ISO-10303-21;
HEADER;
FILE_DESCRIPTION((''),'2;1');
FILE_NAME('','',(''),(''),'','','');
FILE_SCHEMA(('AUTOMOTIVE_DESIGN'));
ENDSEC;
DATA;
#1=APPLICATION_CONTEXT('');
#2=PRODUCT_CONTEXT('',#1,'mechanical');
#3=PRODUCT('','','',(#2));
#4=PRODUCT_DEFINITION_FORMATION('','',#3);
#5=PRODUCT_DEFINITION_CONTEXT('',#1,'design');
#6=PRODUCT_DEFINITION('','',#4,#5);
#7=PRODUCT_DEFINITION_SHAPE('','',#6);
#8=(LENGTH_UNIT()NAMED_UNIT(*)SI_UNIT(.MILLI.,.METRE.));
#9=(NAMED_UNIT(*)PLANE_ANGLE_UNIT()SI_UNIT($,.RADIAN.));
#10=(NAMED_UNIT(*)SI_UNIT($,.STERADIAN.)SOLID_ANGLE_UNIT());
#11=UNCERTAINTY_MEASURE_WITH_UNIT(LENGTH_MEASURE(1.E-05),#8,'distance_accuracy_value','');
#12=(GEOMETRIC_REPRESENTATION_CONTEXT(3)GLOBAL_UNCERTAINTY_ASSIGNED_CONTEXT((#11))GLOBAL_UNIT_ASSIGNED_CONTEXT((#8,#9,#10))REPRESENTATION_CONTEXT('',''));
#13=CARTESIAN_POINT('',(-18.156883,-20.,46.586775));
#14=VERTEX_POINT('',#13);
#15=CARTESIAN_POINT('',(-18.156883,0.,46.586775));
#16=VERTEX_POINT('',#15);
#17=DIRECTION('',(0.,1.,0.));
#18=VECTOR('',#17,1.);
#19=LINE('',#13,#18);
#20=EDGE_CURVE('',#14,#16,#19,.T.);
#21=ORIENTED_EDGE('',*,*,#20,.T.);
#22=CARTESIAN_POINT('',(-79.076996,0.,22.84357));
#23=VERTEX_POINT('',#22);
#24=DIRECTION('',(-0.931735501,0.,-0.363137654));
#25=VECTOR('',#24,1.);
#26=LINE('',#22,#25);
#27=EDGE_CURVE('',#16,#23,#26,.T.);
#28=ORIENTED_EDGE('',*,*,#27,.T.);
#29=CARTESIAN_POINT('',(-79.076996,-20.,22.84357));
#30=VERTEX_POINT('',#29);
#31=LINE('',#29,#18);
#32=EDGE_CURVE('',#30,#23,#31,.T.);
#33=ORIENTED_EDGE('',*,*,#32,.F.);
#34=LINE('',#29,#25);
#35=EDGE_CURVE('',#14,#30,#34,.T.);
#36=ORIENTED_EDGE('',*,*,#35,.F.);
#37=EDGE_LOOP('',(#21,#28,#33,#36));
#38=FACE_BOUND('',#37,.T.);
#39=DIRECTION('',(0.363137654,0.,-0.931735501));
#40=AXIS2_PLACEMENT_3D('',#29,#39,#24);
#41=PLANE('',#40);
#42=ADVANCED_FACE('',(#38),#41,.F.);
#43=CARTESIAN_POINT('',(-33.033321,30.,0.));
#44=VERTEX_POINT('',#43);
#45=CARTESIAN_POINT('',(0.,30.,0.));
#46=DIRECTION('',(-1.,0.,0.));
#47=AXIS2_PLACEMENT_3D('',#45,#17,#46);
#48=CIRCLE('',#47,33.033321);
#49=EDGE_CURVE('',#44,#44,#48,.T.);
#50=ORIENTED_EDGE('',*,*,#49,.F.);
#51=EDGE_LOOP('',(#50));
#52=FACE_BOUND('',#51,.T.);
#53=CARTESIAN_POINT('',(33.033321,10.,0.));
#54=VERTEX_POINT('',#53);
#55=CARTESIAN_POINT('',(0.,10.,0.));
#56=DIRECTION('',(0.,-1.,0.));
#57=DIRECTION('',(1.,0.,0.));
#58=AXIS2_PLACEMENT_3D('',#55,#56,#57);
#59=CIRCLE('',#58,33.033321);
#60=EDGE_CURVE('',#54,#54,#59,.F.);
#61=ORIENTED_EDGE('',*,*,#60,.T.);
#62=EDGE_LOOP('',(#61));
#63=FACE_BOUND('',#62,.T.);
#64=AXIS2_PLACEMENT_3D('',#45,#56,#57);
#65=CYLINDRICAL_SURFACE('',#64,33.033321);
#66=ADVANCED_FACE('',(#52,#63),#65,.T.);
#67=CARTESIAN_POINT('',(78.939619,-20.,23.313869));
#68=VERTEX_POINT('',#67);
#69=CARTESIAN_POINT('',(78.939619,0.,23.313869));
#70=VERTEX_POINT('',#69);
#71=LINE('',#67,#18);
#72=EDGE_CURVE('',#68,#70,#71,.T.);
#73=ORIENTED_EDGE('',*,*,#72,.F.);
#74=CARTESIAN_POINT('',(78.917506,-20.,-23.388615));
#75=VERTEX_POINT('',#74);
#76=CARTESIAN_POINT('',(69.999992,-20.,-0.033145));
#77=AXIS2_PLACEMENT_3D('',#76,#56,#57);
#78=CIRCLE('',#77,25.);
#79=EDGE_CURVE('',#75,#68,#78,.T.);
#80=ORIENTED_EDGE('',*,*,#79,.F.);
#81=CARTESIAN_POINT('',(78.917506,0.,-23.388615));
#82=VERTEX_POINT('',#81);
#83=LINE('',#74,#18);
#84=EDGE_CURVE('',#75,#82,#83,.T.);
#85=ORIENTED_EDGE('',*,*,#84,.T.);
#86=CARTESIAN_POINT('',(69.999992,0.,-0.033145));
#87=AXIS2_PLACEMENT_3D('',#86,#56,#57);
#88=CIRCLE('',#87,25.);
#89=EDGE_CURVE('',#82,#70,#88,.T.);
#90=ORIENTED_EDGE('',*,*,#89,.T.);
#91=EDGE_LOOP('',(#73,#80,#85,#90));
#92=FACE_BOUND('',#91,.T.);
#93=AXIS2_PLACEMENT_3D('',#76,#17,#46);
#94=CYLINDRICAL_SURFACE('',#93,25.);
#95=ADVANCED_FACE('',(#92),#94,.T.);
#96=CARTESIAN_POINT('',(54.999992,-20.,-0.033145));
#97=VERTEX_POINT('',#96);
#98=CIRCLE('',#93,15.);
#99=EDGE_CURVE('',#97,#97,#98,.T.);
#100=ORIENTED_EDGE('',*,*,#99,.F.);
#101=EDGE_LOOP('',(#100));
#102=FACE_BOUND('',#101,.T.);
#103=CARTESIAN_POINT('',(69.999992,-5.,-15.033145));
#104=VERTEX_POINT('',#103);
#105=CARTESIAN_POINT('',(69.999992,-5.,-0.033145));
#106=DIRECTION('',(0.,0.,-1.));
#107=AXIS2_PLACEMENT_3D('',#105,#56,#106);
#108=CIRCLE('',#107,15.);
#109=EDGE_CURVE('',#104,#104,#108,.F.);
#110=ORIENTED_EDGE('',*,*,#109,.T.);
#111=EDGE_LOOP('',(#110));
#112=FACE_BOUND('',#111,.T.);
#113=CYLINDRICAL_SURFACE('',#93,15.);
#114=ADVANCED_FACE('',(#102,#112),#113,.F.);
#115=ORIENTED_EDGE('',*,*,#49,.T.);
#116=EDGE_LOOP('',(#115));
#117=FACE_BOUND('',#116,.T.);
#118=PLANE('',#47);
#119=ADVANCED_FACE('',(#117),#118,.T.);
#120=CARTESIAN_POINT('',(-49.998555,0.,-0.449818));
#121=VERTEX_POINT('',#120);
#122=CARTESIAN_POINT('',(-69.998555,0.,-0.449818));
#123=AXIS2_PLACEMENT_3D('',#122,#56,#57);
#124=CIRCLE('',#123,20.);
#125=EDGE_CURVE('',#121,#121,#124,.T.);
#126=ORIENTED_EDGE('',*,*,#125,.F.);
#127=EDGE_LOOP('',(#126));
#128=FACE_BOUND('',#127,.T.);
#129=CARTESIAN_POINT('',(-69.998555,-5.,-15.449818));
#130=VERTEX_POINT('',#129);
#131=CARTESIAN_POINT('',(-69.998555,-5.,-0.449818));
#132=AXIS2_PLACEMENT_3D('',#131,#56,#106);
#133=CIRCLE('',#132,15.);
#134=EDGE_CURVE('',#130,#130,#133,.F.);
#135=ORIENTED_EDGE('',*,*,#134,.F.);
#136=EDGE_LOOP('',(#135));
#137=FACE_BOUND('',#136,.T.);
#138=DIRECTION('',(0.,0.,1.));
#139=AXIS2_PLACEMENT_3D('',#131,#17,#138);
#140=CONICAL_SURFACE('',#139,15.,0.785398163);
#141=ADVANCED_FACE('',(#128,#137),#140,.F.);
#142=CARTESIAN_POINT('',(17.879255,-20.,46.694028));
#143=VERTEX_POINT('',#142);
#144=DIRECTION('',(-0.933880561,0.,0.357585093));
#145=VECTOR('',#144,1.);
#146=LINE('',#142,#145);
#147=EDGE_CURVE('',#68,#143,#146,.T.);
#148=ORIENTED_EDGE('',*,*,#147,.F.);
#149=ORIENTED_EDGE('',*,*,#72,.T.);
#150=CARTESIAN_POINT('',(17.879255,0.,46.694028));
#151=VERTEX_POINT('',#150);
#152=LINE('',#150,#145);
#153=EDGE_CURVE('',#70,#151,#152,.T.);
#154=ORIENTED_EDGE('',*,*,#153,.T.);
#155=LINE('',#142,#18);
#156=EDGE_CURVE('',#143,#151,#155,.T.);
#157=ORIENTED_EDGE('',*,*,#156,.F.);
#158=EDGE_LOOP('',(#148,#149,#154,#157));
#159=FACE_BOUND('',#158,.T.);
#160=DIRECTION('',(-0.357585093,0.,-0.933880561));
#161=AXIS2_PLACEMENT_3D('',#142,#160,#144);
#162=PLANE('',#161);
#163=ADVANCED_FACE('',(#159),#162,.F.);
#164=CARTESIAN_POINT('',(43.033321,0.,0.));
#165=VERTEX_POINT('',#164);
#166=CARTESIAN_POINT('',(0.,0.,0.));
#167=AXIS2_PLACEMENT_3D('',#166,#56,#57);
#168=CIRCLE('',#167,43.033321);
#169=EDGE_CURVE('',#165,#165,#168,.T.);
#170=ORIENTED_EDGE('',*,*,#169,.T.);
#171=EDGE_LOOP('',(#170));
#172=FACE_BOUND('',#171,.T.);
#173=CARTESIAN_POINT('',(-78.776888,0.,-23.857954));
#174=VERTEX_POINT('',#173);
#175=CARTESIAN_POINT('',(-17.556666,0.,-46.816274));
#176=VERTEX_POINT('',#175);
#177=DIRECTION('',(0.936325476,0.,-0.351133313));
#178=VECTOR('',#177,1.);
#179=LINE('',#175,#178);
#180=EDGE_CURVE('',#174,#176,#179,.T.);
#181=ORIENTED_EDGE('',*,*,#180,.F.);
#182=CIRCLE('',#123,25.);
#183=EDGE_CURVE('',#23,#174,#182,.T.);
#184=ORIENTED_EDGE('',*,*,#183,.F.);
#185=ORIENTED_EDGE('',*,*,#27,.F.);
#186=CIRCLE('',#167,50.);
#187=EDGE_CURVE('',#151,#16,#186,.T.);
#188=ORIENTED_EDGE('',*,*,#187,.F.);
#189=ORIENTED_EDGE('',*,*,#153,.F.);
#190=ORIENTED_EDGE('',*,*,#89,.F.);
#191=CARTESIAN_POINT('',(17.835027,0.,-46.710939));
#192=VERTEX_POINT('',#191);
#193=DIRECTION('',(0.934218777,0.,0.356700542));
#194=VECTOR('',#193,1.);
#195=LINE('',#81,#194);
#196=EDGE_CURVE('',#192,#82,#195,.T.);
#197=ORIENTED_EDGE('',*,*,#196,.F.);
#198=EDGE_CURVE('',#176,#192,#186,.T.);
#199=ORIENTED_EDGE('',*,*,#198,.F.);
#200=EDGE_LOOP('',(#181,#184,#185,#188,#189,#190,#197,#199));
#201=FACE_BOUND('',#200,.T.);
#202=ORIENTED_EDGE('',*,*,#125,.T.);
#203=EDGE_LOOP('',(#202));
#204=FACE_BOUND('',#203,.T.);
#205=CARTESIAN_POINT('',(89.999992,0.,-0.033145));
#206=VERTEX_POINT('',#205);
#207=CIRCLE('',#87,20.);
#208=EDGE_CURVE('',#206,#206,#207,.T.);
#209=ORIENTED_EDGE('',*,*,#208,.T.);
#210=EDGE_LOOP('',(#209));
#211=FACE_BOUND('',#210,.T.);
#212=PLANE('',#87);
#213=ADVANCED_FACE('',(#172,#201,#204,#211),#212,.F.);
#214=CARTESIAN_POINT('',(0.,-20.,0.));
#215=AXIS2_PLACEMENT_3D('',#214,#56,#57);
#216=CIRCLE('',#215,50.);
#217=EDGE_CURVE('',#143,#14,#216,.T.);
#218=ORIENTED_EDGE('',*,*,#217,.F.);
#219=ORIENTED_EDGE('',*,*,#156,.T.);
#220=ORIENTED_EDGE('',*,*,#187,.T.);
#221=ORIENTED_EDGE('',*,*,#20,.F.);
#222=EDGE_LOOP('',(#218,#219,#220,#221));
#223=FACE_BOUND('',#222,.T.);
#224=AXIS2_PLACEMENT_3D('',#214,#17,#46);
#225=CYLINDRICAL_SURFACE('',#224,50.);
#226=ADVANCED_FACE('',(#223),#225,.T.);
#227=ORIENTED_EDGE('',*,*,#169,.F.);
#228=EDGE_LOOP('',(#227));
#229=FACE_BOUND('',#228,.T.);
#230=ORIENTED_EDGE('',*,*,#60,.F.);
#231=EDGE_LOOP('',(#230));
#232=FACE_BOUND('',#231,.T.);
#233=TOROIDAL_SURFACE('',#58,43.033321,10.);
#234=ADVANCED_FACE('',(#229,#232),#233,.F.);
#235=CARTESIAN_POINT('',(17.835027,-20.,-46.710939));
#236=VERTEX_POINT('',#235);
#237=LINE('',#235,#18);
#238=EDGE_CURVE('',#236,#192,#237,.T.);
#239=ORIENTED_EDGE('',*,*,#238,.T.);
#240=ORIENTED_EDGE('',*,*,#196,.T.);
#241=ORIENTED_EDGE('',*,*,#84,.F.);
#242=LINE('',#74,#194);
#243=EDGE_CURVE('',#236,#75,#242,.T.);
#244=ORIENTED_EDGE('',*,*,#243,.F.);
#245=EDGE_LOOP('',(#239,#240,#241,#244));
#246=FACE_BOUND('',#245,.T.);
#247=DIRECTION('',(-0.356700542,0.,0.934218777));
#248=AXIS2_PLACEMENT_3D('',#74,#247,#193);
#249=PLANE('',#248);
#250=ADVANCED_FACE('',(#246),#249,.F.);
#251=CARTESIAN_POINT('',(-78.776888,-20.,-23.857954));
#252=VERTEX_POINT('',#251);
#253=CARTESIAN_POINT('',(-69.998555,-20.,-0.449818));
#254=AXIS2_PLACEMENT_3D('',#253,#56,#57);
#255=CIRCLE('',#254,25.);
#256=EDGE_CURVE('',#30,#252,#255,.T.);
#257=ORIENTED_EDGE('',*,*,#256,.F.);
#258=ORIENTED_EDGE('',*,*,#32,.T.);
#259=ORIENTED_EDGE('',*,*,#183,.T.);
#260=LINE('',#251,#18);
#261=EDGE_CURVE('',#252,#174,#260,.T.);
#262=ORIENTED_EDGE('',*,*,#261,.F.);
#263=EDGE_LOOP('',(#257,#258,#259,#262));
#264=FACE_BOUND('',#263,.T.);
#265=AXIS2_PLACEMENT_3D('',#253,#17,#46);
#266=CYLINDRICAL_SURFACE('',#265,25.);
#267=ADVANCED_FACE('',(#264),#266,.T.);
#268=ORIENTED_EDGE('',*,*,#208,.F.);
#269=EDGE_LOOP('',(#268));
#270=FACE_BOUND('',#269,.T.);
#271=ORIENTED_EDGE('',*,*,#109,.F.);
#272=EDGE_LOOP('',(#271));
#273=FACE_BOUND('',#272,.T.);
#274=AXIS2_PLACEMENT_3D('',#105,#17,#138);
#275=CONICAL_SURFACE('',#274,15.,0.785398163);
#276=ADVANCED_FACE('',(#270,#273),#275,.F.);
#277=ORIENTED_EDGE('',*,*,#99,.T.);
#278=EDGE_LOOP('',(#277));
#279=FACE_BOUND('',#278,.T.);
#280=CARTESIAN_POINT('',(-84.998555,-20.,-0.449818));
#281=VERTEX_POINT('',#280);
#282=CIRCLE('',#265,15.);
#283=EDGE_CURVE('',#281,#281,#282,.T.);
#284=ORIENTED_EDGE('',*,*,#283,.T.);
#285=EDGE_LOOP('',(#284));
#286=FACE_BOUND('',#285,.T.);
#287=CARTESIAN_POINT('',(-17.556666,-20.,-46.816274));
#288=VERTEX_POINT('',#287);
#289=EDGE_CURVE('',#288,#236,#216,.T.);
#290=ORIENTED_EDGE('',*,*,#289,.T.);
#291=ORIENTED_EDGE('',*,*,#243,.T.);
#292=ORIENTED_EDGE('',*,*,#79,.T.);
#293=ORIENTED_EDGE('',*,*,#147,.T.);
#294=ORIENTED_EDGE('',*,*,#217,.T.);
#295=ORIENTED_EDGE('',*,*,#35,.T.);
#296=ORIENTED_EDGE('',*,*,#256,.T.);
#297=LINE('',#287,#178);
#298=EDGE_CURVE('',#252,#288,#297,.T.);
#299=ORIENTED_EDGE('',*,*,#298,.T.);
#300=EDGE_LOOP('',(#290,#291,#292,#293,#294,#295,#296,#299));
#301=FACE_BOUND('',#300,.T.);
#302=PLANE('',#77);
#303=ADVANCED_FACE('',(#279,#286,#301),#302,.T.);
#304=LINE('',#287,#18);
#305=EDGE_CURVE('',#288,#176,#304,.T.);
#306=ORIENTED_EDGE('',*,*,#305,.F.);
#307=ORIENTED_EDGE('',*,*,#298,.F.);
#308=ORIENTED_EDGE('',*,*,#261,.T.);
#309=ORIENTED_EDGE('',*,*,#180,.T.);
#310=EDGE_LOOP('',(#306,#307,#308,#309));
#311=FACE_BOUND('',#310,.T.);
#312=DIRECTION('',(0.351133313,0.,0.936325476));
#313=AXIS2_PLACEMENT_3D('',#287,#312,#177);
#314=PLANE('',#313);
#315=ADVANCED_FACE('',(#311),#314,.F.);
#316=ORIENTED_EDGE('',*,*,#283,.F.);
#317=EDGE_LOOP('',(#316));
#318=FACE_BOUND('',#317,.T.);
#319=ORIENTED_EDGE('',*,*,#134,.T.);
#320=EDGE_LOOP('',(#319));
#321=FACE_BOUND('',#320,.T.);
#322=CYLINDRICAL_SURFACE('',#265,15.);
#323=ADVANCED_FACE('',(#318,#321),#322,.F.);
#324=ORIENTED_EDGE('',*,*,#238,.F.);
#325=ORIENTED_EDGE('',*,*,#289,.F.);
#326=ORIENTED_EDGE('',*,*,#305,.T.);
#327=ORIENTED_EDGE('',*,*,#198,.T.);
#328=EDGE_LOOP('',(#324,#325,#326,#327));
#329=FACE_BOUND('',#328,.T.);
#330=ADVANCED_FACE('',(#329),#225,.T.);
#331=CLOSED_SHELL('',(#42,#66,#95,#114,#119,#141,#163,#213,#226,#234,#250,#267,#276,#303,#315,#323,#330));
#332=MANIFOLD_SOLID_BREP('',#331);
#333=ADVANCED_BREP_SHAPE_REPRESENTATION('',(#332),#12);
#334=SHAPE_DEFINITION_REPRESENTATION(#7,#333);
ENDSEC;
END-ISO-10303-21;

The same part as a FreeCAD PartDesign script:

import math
import FreeCAD as App
import Part
import Sketcher
from FreeCAD import Vector
Q = App.Units.Quantity


def edges_at(feature, points):
    """Names of the edges that pass closest to the given points."""
    edges = feature.Shape.Edges
    near = lambda p: min(range(len(edges)), key=lambda i: edges[i].distToShape(Part.Vertex(*p))[0])
    return sorted({f"Edge{near(p) + 1}" for p in points})

doc = App.newDocument("Part")
params = doc.addObject("Spreadsheet::Sheet", "Params")
for row, (alias, value) in enumerate([
    ("sketch1_radius", "25 mm"),
    ("sketch1_radius2", "50 mm"),
    ("pad1_length", "20 mm"),
    ("pad2_length", "30 mm"),
    ("sketch3_diameter", "30 mm"),
    ("fillet_radius", "10 mm"),
    ("chamfer_size", "5 mm"),
], start=1):
    params.set(f"A{row}", alias)
    params.set(f"B{row}", "=" + value)
    params.setAlias(f"B{row}", alias)

body = doc.addObject("PartDesign::Body", "Body")

sketch1 = body.newObject("Sketcher::SketchObject", "Sketch")
sketch1.AttachmentSupport = (doc.getObject("XZ_Plane"), [""])
sketch1.MapMode = "FlatFace"
sketch1.addGeometry(Part.LineSegment(Vector(18, -47, 0), Vector(79, -23, 0)), False)
sketch1.addGeometry(Part.ArcOfCircle(Part.Circle(Vector(70, 0, 0), Vector(0, 0, 1), 25), math.radians(-69), math.radians(69)), False)
sketch1.addGeometry(Part.LineSegment(Vector(79, 23, 0), Vector(18, 47, 0)), False)
sketch1.addGeometry(Part.ArcOfCircle(Part.Circle(Vector(0, 0, 0), Vector(0, 0, 1), 50), math.radians(69), math.radians(111)), False)
sketch1.addGeometry(Part.LineSegment(Vector(-18, 47, 0), Vector(-79, 23, 0)), False)
sketch1.addGeometry(Part.ArcOfCircle(Part.Circle(Vector(-70, 0, 0), Vector(0, 0, 1), 25), math.radians(111), math.radians(249)), False)
sketch1.addGeometry(Part.LineSegment(Vector(-79, -24, 0), Vector(-18, -47, 0)), False)
sketch1.addGeometry(Part.ArcOfCircle(Part.Circle(Vector(0, 0, 0), Vector(0, 0, 1), 50), math.radians(-111), math.radians(-69)), False)
sketch1.addConstraint(Sketcher.Constraint("Tangent", 0, 2, 1, 1))
sketch1.addConstraint(Sketcher.Constraint("Tangent", 1, 2, 2, 1))
sketch1.addConstraint(Sketcher.Constraint("Tangent", 2, 2, 3, 1))
sketch1.addConstraint(Sketcher.Constraint("Tangent", 3, 2, 4, 1))
sketch1.addConstraint(Sketcher.Constraint("Tangent", 4, 2, 5, 1))
sketch1.addConstraint(Sketcher.Constraint("Tangent", 5, 2, 6, 1))
sketch1.addConstraint(Sketcher.Constraint("Tangent", 6, 2, 7, 1))
sketch1.addConstraint(Sketcher.Constraint("Tangent", 7, 2, 0, 1))
sketch1.addConstraint(Sketcher.Constraint("Coincident", 3, 3, -1, 1))
sketch1.addConstraint(Sketcher.Constraint("Coincident", 7, 3, -1, 1))
sketch1.addConstraint(Sketcher.Constraint("Equal", 1, 5))
sketch1.addConstraint(Sketcher.Constraint("Equal", 3, 7))
sketch1.addConstraint(Sketcher.Constraint("Equal", 2, 4))
sketch1.addConstraint(Sketcher.Constraint("Radius", 1, Q("25 mm")))
sketch1.addConstraint(Sketcher.Constraint("Radius", 3, Q("50 mm")))
sketch1.addConstraint(Sketcher.Constraint("DistanceX", -1, 1, 1, 2, Q("78.939619 mm")))
sketch1.addConstraint(Sketcher.Constraint("DistanceY", -1, 1, 1, 2, Q("23.313869 mm")))
sketch1.addConstraint(Sketcher.Constraint("DistanceY", -1, 1, 4, 2, Q("22.84357 mm")))
sketch1.setExpression("Constraints[13]", "Params.sketch1_radius")
sketch1.setExpression("Constraints[14]", "Params.sketch1_radius2")
pad1 = body.newObject("PartDesign::Pad", "Pad")
pad1.Profile = sketch1
pad1.setExpression("Length", "Params.pad1_length")

sketch2 = body.newObject("Sketcher::SketchObject", "Sketch001")
sketch2.AttachmentSupport = (doc.getObject("XZ_Plane"), [""])
sketch2.MapMode = "FlatFace"
sketch2.addGeometry(Part.Circle(Vector(0, 0, 0), Vector(0, 0, 1), 33), False)
sketch2.addConstraint(Sketcher.Constraint("Coincident", 0, 3, -1, 1))
sketch2.addConstraint(Sketcher.Constraint("Diameter", 0, Q("66.066641 mm")))
pad2 = body.newObject("PartDesign::Pad", "Pad001")
pad2.Profile = sketch2
pad2.setExpression("Length", "Params.pad2_length")
pad2.Reversed = True

sketch3 = body.newObject("Sketcher::SketchObject", "Sketch002")
sketch3.AttachmentSupport = (doc.getObject("XZ_Plane"), [""])
sketch3.MapMode = "FlatFace"
sketch3.addGeometry(Part.Circle(Vector(70, 0, 0), Vector(0, 0, 1), 15), False)
sketch3.addGeometry(Part.Circle(Vector(-70, 0, 0), Vector(0, 0, 1), 15), False)
sketch3.addConstraint(Sketcher.Constraint("Equal", 0, 1))
sketch3.addConstraint(Sketcher.Constraint("Diameter", 0, Q("30 mm")))
sketch3.addConstraint(Sketcher.Constraint("DistanceX", -1, 1, 0, 3, Q("69.999992 mm")))
sketch3.addConstraint(Sketcher.Constraint("DistanceY", 0, 3, -1, 1, Q("0.033145 mm")))
sketch3.addConstraint(Sketcher.Constraint("DistanceX", 1, 3, -1, 1, Q("69.998555 mm")))
sketch3.addConstraint(Sketcher.Constraint("DistanceY", 1, 3, -1, 1, Q("0.449818 mm")))
sketch3.setExpression("Constraints[1]", "Params.sketch3_diameter")
pocket1 = body.newObject("PartDesign::Pocket", "Pocket")
pocket1.Profile = sketch3
pocket1.Type = "ThroughAll"
pocket1.Reversed = True
doc.recompute()

fillet = body.newObject("PartDesign::Fillet", "Fillet")
fillet.Base = (pocket1, edges_at(pocket1, [(-33.033, 0, 0)]))
fillet.setExpression("Radius", "Params.fillet_radius")
doc.recompute()

chamfer = body.newObject("PartDesign::Chamfer", "Chamfer")
chamfer.Base = (fillet, edges_at(fillet, [(85, 0, -0.033), (-54.999, 0, -0.45)]))
chamfer.setExpression("Size", "Params.chamfer_size")

doc.recompute()
